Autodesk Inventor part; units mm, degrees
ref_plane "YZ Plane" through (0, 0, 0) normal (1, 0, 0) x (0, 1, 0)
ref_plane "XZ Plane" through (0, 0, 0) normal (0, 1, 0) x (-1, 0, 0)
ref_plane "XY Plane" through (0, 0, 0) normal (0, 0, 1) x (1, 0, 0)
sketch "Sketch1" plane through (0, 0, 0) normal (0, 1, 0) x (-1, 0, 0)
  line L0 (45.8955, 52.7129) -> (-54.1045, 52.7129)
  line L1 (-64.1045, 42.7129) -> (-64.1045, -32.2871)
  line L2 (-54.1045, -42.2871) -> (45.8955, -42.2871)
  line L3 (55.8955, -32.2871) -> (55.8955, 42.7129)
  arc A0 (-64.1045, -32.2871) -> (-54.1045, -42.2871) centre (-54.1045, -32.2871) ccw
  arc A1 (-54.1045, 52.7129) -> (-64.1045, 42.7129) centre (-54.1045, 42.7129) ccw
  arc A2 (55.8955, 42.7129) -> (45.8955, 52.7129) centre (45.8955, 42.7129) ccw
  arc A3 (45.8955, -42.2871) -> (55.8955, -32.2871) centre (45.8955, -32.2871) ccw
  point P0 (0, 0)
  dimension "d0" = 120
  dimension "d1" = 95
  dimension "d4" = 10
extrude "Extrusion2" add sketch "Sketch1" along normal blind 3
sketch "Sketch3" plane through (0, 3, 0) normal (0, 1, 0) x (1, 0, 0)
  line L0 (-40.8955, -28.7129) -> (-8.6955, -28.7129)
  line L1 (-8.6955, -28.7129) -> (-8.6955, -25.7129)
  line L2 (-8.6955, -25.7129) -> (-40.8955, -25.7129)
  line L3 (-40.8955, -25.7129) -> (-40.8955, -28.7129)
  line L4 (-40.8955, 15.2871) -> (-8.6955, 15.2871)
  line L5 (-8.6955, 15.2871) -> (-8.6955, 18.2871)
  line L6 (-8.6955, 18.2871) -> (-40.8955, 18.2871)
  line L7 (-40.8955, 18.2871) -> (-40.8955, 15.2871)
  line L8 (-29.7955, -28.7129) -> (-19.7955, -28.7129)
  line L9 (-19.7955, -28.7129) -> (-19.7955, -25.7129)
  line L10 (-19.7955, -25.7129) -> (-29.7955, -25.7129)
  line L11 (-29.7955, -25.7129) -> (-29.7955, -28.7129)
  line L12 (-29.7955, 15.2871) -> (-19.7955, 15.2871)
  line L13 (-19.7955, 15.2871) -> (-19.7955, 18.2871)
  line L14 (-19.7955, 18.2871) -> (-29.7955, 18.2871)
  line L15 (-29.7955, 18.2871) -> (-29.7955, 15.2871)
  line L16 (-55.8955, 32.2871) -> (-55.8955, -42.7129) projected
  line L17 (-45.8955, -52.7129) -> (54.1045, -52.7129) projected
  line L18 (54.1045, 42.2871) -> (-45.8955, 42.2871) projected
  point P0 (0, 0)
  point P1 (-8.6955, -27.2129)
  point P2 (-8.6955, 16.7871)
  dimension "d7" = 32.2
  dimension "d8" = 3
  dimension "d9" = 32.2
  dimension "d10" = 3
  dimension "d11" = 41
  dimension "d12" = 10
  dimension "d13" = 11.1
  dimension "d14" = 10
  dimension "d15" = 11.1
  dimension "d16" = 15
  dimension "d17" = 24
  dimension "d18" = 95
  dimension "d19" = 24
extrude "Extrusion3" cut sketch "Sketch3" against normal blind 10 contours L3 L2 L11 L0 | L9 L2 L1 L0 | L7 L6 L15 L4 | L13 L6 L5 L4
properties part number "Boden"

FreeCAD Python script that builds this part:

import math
import FreeCAD as App
import Part
import Sketcher
Q = App.Units.Quantity

doc = App.newDocument("Part")
body = doc.addObject("PartDesign::Body", "Body")

sketch1 = doc.addObject("Sketcher::SketchObject", "Sketch")
body.addObject(sketch1)
sketch1.AttachmentSupport = (doc.XZ_Plane, [""])
sketch1.MapMode = "FlatFace"
sketch1.addGeometry([
    Part.ArcOfCircle(Part.Circle(App.Vector(-45.8955, 42.7129, 0), App.Vector(0, 0, 1), 10), math.radians(90), math.radians(180)),
    Part.LineSegment(App.Vector(-45.8955, 52.7129, 0), App.Vector(54.1045, 52.7129, 0)),
    Part.ArcOfCircle(Part.Circle(App.Vector(54.1045, 42.7129, 0), App.Vector(0, 0, 1), 10), math.radians(0), math.radians(90)),
    Part.LineSegment(App.Vector(64.1045, 42.7129, 0), App.Vector(64.1045, -32.2871, 0)),
    Part.ArcOfCircle(Part.Circle(App.Vector(54.1045, -32.2871, 0), App.Vector(0, 0, 1), 10), math.radians(-90), math.radians(0)),
    Part.LineSegment(App.Vector(54.1045, -42.2871, 0), App.Vector(-45.8955, -42.2871, 0)),
    Part.ArcOfCircle(Part.Circle(App.Vector(-45.8955, -32.2871, 0), App.Vector(0, 0, 1), 10), math.radians(180), math.radians(270)),
    Part.LineSegment(App.Vector(-55.8955, -32.2871, 0), App.Vector(-55.8955, 42.7129, 0)),
], False)
sketch1.addConstraint([
    Sketcher.Constraint("Tangent", 0, 1, 1, 1),
    Sketcher.Constraint("Tangent", 1, 2, 2, 2),
    Sketcher.Constraint("Tangent", 2, 1, 3, 1),
    Sketcher.Constraint("Tangent", 3, 2, 4, 2),
    Sketcher.Constraint("Tangent", 4, 1, 5, 1),
    Sketcher.Constraint("Tangent", 5, 2, 6, 2),
    Sketcher.Constraint("Tangent", 6, 1, 7, 1),
    Sketcher.Constraint("Tangent", 7, 2, 0, 2),
    Sketcher.Constraint("Horizontal", 1),
    Sketcher.Constraint("Vertical", 3),
    Sketcher.Constraint("Horizontal", 5),
    Sketcher.Constraint("Vertical", 7),
    Sketcher.Constraint("Equal", 0, 2),
    Sketcher.Constraint("Equal", 2, 4),
    Sketcher.Constraint("Equal", 4, 6),
    Sketcher.Constraint("Radius", 0, Q("0.3937 in")),
    Sketcher.Constraint("DistanceX", 1, 1, 1, 2, Q("3.937 in")),
    Sketcher.Constraint("DistanceY", 4, 1, 1, 2, Q("95 mm")),
    Sketcher.Constraint("DistanceX", 0, 3, -1, 1, Q("1.8069 in")),
    Sketcher.Constraint("DistanceY", -1, 1, 0, 3, Q("1.6816 in")),
])
pad1 = doc.addObject("PartDesign::Pad", "Pad")
body.addObject(pad1)
pad1.Profile = sketch1
pad1.Length = Q("0.1181102 in")
pad1.Reversed = True

sketch2 = doc.addObject("Sketcher::SketchObject", "Sketch001")
body.addObject(sketch2)
sketch2.AttachmentSupport = (doc.XZ_Plane, [""])
sketch2.MapMode = "FlatFace"
sketch2.AttachmentOffset = App.Placement(App.Vector(0, 0, -0.1181102 * 25.4), App.Rotation())
sketch2.addGeometry([
    Part.LineSegment(App.Vector(-40.8955, 25.7129, 0), App.Vector(-40.8955, 28.7129, 0)),
    Part.LineSegment(App.Vector(-40.8955, 28.7129, 0), App.Vector(-29.7955, 28.7129, 0)),
    Part.LineSegment(App.Vector(-29.7955, 28.7129, 0), App.Vector(-29.7955, 25.7129, 0)),
    Part.LineSegment(App.Vector(-29.7955, 25.7129, 0), App.Vector(-40.8955, 25.7129, 0)),
    Part.LineSegment(App.Vector(-19.7955, 25.7129, 0), App.Vector(-19.7955, 28.7129, 0)),
    Part.LineSegment(App.Vector(-19.7955, 28.7129, 0), App.Vector(-8.6955, 28.7129, 0)),
    Part.LineSegment(App.Vector(-8.6955, 28.7129, 0), App.Vector(-8.6955, 25.7129, 0)),
    Part.LineSegment(App.Vector(-8.6955, 25.7129, 0), App.Vector(-19.7955, 25.7129, 0)),
    Part.LineSegment(App.Vector(-40.8955, -18.2871, 0), App.Vector(-40.8955, -15.2871, 0)),
    Part.LineSegment(App.Vector(-40.8955, -15.2871, 0), App.Vector(-29.7955, -15.2871, 0)),
    Part.LineSegment(App.Vector(-29.7955, -15.2871, 0), App.Vector(-29.7955, -18.2871, 0)),
    Part.LineSegment(App.Vector(-29.7955, -18.2871, 0), App.Vector(-40.8955, -18.2871, 0)),
    Part.LineSegment(App.Vector(-19.7955, -18.2871, 0), App.Vector(-19.7955, -15.2871, 0)),
    Part.LineSegment(App.Vector(-19.7955, -15.2871, 0), App.Vector(-8.6955, -15.2871, 0)),
    Part.LineSegment(App.Vector(-8.6955, -15.2871, 0), App.Vector(-8.6955, -18.2871, 0)),
    Part.LineSegment(App.Vector(-8.6955, -18.2871, 0), App.Vector(-19.7955, -18.2871, 0)),
], False)
sketch2.addConstraint([
    Sketcher.Constraint("Coincident", 0, 2, 1, 1),
    Sketcher.Constraint("Coincident", 1, 2, 2, 1),
    Sketcher.Constraint("Coincident", 2, 2, 3, 1),
    Sketcher.Constraint("Coincident", 3, 2, 0, 1),
    Sketcher.Constraint("Coincident", 4, 2, 5, 1),
    Sketcher.Constraint("Coincident", 5, 2, 6, 1),
    Sketcher.Constraint("Coincident", 6, 2, 7, 1),
    Sketcher.Constraint("Coincident", 7, 2, 4, 1),
    Sketcher.Constraint("Coincident", 8, 2, 9, 1),
    Sketcher.Constraint("Coincident", 9, 2, 10, 1),
    Sketcher.Constraint("Coincident", 10, 2, 11, 1),
    Sketcher.Constraint("Coincident", 11, 2, 8, 1),
    Sketcher.Constraint("Coincident", 12, 2, 13, 1),
    Sketcher.Constraint("Coincident", 13, 2, 14, 1),
    Sketcher.Constraint("Coincident", 14, 2, 15, 1),
    Sketcher.Constraint("Coincident", 15, 2, 12, 1),
    Sketcher.Constraint("Vertical", 0),
    Sketcher.Constraint("Horizontal", 1),
    Sketcher.Constraint("Vertical", 2),
    Sketcher.Constraint("Horizontal", 3),
    Sketcher.Constraint("Vertical", 4),
    Sketcher.Constraint("Horizontal", 5),
    Sketcher.Constraint("Vertical", 6),
    Sketcher.Constraint("Horizontal", 7),
    Sketcher.Constraint("Vertical", 8),
    Sketcher.Constraint("Horizontal", 9),
    Sketcher.Constraint("Vertical", 10),
    Sketcher.Constraint("Horizontal", 11),
    Sketcher.Constraint("Vertical", 12),
    Sketcher.Constraint("Horizontal", 13),
    Sketcher.Constraint("Vertical", 14),
    Sketcher.Constraint("Horizontal", 15),
    Sketcher.Constraint("Horizontal", 1, 2, 4, 2),
    Sketcher.Constraint("Horizontal", 3, 2, 6, 2),
    Sketcher.Constraint("Horizontal", 9, 2, 12, 2),
    Sketcher.Constraint("Horizontal", 11, 2, 14, 2),
    Sketcher.Constraint("Vertical", 3, 2, 8, 2),
    Sketcher.Constraint("Vertical", 2, 2, 9, 2),
    Sketcher.Constraint("Vertical", 7, 2, 12, 2),
    Sketcher.Constraint("Vertical", 6, 2, 13, 2),
    Sketcher.Constraint("Equal", 3, 5),
    Sketcher.Constraint("Equal", 6, 8),
    Sketcher.Constraint("DistanceX", 1, 1, 1, 2, Q("0.437 in")),
    Sketcher.Constraint("DistanceY", 0, 1, 0, 2, Q("0.1181 in")),
    Sketcher.Constraint("DistanceX", 1, 2, 4, 2, Q("0.3937 in")),
    Sketcher.Constraint("DistanceY", 8, 2, 3, 2, Q("41 mm")),
    Sketcher.Constraint("DistanceX", 0, 2, -1, 1, Q("40.8955 mm")),
    Sketcher.Constraint("DistanceY", -1, 1, 0, 2, Q("28.713 mm")),
])
pocket1 = doc.addObject("PartDesign::Pocket", "Pocket")
body.addObject(pocket1)
pocket1.Profile = sketch2
pocket1.Length = Q("0.3937008 in")
pocket1.Reversed = True

doc.recompute()
